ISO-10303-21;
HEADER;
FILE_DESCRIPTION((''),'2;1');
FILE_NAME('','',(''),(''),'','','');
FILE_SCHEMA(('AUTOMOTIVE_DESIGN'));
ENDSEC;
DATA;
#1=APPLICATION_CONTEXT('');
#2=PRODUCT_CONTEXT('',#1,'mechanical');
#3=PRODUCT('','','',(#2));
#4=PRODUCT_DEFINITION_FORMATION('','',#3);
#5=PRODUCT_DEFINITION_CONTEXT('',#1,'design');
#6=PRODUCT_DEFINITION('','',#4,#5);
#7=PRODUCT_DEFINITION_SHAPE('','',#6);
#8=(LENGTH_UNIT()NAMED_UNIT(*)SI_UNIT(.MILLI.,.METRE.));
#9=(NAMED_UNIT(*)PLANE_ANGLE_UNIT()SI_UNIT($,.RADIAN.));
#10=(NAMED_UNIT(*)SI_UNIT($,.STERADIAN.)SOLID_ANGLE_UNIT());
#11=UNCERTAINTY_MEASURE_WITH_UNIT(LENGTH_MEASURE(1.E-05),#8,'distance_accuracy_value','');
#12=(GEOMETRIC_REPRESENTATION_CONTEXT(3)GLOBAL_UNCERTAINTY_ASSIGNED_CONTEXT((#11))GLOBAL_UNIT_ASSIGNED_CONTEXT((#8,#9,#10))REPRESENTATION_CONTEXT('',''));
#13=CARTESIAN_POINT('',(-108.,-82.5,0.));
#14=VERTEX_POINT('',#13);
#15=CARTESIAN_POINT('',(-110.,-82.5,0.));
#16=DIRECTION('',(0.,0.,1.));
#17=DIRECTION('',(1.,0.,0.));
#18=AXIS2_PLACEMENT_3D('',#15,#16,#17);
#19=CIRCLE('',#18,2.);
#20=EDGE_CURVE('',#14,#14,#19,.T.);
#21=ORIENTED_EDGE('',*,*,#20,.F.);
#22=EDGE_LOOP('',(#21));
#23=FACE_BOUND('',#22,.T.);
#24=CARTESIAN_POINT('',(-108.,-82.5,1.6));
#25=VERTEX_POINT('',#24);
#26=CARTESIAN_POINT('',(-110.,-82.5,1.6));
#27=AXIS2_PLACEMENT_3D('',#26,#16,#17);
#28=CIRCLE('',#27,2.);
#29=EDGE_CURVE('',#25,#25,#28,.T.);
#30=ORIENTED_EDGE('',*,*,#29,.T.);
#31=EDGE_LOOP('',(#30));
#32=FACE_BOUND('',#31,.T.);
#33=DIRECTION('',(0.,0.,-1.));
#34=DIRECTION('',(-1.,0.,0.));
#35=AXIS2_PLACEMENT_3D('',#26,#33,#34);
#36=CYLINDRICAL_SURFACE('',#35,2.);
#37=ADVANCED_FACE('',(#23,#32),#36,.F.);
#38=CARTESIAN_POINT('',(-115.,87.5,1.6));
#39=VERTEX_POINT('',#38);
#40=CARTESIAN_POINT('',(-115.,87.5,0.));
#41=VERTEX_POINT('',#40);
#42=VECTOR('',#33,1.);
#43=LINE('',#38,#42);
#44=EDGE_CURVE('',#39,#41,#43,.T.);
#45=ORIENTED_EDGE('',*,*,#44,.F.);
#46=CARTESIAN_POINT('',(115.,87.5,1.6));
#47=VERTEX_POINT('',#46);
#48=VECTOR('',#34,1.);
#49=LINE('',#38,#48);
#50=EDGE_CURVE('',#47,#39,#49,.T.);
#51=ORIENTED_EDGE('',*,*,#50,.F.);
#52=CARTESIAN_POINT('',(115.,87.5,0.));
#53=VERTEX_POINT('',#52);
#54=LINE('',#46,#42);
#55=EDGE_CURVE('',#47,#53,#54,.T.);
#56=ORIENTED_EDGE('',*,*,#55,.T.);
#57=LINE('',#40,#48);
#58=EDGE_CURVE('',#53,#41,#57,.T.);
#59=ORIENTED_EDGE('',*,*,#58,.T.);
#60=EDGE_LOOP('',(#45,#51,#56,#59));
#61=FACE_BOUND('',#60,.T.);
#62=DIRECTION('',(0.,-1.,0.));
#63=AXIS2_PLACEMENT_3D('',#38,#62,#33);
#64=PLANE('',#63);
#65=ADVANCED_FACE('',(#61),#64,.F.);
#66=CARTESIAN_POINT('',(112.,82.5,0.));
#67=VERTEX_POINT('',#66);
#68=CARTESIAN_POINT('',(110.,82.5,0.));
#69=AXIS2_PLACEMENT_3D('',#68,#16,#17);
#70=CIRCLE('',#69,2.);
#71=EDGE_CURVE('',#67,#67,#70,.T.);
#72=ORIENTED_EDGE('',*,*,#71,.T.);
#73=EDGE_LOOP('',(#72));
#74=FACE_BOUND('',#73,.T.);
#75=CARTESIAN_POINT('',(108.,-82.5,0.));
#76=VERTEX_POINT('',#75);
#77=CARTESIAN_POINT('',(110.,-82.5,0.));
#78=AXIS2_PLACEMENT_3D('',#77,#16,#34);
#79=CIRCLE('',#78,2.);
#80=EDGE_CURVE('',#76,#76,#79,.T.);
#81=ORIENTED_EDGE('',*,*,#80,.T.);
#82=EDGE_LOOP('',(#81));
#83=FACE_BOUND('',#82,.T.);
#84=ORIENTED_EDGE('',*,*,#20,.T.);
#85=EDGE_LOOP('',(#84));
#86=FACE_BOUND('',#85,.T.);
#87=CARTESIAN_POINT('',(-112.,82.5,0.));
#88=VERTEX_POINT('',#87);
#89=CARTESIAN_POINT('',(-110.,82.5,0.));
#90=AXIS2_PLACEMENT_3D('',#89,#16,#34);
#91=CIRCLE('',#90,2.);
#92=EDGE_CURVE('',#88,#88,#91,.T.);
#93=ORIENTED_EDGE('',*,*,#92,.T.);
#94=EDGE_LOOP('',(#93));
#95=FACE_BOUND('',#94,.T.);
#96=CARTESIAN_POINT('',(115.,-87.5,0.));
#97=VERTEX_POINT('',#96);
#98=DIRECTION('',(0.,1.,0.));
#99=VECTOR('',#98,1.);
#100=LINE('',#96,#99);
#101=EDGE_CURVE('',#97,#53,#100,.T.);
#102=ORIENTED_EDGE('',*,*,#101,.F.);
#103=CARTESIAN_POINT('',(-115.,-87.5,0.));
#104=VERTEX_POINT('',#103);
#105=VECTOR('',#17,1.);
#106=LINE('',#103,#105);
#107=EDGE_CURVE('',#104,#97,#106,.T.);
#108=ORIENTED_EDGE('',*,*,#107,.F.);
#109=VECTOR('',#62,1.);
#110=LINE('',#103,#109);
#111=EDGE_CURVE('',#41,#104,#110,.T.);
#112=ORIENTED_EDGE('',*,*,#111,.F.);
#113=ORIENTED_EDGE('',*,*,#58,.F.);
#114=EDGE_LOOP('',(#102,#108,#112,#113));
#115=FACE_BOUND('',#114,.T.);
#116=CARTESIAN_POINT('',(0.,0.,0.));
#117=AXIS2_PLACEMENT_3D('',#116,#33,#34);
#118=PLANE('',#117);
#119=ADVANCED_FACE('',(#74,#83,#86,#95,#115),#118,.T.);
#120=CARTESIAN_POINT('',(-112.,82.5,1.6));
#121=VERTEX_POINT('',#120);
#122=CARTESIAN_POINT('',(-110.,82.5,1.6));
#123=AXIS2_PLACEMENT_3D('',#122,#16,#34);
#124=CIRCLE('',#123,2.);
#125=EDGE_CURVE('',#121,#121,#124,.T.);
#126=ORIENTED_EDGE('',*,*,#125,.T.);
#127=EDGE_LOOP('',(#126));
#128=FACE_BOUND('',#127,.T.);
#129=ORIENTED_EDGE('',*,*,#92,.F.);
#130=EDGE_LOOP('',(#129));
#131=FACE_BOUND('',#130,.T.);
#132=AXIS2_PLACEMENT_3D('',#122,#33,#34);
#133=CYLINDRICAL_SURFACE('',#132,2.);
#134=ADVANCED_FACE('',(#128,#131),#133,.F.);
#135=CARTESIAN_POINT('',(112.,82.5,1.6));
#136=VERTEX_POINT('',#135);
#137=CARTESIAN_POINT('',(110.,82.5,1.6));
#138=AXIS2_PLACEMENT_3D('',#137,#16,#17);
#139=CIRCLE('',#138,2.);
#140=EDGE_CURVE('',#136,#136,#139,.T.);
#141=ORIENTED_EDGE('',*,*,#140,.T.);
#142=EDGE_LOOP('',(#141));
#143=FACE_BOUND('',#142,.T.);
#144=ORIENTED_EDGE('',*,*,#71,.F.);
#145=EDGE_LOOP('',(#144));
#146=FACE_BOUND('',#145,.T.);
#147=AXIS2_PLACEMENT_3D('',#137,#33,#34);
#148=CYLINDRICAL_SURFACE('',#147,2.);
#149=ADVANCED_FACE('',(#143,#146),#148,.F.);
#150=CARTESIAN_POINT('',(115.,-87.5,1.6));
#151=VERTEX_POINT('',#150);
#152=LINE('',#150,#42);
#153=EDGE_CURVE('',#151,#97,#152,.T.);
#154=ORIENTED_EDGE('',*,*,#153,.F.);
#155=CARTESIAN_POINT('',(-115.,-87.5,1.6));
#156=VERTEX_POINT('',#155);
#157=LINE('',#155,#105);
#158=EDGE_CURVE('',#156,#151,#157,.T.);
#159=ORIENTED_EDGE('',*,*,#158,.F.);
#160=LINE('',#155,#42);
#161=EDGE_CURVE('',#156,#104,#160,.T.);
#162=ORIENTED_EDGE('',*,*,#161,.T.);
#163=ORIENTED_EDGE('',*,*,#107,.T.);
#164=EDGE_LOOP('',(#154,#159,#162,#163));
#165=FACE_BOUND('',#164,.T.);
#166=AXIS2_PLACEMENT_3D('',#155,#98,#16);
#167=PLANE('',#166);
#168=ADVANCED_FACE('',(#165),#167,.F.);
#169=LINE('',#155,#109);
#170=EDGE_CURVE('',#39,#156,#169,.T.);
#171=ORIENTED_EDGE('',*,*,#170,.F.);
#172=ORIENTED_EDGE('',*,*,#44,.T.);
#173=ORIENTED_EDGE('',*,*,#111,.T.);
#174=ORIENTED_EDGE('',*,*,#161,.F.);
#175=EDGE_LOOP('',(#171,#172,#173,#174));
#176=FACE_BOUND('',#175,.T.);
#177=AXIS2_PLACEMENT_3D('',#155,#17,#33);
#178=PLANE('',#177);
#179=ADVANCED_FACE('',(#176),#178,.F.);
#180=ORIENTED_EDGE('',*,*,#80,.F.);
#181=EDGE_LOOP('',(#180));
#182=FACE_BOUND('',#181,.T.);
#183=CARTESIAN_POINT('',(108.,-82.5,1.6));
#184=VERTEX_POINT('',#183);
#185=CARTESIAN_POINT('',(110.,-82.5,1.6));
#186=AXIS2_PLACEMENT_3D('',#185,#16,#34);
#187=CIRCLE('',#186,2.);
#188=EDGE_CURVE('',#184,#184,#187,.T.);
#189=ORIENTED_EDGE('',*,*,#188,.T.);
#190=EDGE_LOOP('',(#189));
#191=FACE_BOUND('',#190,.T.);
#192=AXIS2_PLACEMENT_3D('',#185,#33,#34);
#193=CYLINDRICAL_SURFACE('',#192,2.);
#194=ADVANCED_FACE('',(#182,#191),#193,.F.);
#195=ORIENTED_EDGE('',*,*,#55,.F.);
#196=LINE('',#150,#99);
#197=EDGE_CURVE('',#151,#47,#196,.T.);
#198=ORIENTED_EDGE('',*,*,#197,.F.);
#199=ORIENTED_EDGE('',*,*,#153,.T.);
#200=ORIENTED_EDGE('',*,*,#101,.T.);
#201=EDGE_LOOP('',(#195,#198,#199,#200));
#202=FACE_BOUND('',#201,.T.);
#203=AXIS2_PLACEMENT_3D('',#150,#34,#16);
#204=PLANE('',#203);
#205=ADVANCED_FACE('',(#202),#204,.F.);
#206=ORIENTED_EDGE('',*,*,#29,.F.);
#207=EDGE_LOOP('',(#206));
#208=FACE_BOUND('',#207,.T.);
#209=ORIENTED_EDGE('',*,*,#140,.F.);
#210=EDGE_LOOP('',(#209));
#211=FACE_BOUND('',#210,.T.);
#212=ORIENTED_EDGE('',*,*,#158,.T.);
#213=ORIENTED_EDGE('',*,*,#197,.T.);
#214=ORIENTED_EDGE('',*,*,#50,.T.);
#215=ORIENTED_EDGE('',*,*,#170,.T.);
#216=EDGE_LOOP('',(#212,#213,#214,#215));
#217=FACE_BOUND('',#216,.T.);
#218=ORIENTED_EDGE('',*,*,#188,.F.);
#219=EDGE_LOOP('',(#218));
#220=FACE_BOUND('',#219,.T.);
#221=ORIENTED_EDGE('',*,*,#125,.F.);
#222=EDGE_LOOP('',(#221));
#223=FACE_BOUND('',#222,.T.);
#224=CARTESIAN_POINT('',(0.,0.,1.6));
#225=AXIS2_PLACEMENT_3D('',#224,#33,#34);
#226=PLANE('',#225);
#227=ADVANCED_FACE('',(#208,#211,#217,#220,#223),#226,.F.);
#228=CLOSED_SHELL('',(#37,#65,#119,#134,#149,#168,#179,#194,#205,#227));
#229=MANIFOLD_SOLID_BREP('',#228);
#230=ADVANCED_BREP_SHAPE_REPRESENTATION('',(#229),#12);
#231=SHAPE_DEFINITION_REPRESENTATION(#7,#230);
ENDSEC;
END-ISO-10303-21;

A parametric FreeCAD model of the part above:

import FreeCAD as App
import Part
import Sketcher

V = App.Vector
Q = App.Units.Quantity

doc = App.newDocument("Part")
params = doc.addObject("Spreadsheet::Sheet", "Params")
for row, (alias, value) in enumerate([
    ("sketch1_diameter", "4 mm"),
    ("sketch1_width", "230 mm"),
    ("sketch1_height", "175 mm"),
    ("pad1_length", "1.6 mm"),
], start=1):
    params.set(f"A{row}", alias)
    params.set(f"B{row}", "=" + value)
    params.setAlias(f"B{row}", alias)

body = doc.addObject("PartDesign::Body", "Body")

# Sketch on XY plane
sketch1 = body.newObject("Sketcher::SketchObject", "Sketch")
sketch1.AttachmentSupport = (doc.getObject("XY_Plane"), [""])
sketch1.MapMode = "FlatFace"
sketch1.addGeometry(Part.LineSegment(V(-115, 87.5, 0), V(-115, -87.5, 0)), False)
sketch1.addGeometry(Part.LineSegment(V(-115, -87.5, 0), V(115, -87.5, 0)), False)
sketch1.addGeometry(Part.LineSegment(V(115, -87.5, 0), V(115, 87.5, 0)), False)
sketch1.addGeometry(Part.LineSegment(V(115, 87.5, 0), V(-115, 87.5, 0)), False)
sketch1.addGeometry(Part.Circle(V(-110, -82.5, 0), V(0, 0, 1), 2), False)
sketch1.addGeometry(Part.Circle(V(110, -82.5, 0), V(0, 0, 1), 2), False)
sketch1.addGeometry(Part.Circle(V(-110, 82.5, 0), V(0, 0, 1), 2), False)
sketch1.addGeometry(Part.Circle(V(110, 82.5, 0), V(0, 0, 1), 2), False)
sketch1.addConstraint(Sketcher.Constraint("Coincident", 0, 2, 1, 1))
sketch1.addConstraint(Sketcher.Constraint("Coincident", 1, 2, 2, 1))
sketch1.addConstraint(Sketcher.Constraint("Coincident", 2, 2, 3, 1))
sketch1.addConstraint(Sketcher.Constraint("Coincident", 3, 2, 0, 1))
sketch1.addConstraint(Sketcher.Constraint("Vertical", 0))
sketch1.addConstraint(Sketcher.Constraint("Horizontal", 1))
sketch1.addConstraint(Sketcher.Constraint("Vertical", 2))
sketch1.addConstraint(Sketcher.Constraint("Horizontal", 3))
sketch1.addConstraint(Sketcher.Constraint("Equal", 4, 5))
sketch1.addConstraint(Sketcher.Constraint("Equal", 5, 6))
sketch1.addConstraint(Sketcher.Constraint("Equal", 6, 7))
sketch1.addConstraint(Sketcher.Constraint("Symmetric", 5, 3, 6, 3, -1, 1))
sketch1.addConstraint(Sketcher.Constraint("Symmetric", 4, 3, 7, 3, -1, 1))
sketch1.addConstraint(Sketcher.Constraint("Symmetric", 0, 2, 2, 2, -1, 1))
sketch1.addConstraint(Sketcher.Constraint("Symmetric", 4, 3, 5, 3, -2))
sketch1.addConstraint(Sketcher.Constraint("Diameter", 4, Q("4 mm")))
sketch1.addConstraint(Sketcher.Constraint("DistanceX", 1, 1, 1, 2, Q("230 mm")))
sketch1.addConstraint(Sketcher.Constraint("DistanceY", 0, 2, 0, 1, Q("175 mm")))
sketch1.addConstraint(Sketcher.Constraint("DistanceX", 4, 3, -1, 1, Q("110 mm")))
sketch1.addConstraint(Sketcher.Constraint("DistanceY", 4, 3, 6, 3, Q("165 mm")))
sketch1.setExpression("Constraints[15]", "Params.sketch1_diameter")
sketch1.setExpression("Constraints[16]", "Params.sketch1_width")
sketch1.setExpression("Constraints[17]", "Params.sketch1_height")
pad1 = body.newObject("PartDesign::Pad", "Pad")
pad1.Profile = sketch1
pad1.setExpression("Length", "Params.pad1_length")

doc.recompute()
